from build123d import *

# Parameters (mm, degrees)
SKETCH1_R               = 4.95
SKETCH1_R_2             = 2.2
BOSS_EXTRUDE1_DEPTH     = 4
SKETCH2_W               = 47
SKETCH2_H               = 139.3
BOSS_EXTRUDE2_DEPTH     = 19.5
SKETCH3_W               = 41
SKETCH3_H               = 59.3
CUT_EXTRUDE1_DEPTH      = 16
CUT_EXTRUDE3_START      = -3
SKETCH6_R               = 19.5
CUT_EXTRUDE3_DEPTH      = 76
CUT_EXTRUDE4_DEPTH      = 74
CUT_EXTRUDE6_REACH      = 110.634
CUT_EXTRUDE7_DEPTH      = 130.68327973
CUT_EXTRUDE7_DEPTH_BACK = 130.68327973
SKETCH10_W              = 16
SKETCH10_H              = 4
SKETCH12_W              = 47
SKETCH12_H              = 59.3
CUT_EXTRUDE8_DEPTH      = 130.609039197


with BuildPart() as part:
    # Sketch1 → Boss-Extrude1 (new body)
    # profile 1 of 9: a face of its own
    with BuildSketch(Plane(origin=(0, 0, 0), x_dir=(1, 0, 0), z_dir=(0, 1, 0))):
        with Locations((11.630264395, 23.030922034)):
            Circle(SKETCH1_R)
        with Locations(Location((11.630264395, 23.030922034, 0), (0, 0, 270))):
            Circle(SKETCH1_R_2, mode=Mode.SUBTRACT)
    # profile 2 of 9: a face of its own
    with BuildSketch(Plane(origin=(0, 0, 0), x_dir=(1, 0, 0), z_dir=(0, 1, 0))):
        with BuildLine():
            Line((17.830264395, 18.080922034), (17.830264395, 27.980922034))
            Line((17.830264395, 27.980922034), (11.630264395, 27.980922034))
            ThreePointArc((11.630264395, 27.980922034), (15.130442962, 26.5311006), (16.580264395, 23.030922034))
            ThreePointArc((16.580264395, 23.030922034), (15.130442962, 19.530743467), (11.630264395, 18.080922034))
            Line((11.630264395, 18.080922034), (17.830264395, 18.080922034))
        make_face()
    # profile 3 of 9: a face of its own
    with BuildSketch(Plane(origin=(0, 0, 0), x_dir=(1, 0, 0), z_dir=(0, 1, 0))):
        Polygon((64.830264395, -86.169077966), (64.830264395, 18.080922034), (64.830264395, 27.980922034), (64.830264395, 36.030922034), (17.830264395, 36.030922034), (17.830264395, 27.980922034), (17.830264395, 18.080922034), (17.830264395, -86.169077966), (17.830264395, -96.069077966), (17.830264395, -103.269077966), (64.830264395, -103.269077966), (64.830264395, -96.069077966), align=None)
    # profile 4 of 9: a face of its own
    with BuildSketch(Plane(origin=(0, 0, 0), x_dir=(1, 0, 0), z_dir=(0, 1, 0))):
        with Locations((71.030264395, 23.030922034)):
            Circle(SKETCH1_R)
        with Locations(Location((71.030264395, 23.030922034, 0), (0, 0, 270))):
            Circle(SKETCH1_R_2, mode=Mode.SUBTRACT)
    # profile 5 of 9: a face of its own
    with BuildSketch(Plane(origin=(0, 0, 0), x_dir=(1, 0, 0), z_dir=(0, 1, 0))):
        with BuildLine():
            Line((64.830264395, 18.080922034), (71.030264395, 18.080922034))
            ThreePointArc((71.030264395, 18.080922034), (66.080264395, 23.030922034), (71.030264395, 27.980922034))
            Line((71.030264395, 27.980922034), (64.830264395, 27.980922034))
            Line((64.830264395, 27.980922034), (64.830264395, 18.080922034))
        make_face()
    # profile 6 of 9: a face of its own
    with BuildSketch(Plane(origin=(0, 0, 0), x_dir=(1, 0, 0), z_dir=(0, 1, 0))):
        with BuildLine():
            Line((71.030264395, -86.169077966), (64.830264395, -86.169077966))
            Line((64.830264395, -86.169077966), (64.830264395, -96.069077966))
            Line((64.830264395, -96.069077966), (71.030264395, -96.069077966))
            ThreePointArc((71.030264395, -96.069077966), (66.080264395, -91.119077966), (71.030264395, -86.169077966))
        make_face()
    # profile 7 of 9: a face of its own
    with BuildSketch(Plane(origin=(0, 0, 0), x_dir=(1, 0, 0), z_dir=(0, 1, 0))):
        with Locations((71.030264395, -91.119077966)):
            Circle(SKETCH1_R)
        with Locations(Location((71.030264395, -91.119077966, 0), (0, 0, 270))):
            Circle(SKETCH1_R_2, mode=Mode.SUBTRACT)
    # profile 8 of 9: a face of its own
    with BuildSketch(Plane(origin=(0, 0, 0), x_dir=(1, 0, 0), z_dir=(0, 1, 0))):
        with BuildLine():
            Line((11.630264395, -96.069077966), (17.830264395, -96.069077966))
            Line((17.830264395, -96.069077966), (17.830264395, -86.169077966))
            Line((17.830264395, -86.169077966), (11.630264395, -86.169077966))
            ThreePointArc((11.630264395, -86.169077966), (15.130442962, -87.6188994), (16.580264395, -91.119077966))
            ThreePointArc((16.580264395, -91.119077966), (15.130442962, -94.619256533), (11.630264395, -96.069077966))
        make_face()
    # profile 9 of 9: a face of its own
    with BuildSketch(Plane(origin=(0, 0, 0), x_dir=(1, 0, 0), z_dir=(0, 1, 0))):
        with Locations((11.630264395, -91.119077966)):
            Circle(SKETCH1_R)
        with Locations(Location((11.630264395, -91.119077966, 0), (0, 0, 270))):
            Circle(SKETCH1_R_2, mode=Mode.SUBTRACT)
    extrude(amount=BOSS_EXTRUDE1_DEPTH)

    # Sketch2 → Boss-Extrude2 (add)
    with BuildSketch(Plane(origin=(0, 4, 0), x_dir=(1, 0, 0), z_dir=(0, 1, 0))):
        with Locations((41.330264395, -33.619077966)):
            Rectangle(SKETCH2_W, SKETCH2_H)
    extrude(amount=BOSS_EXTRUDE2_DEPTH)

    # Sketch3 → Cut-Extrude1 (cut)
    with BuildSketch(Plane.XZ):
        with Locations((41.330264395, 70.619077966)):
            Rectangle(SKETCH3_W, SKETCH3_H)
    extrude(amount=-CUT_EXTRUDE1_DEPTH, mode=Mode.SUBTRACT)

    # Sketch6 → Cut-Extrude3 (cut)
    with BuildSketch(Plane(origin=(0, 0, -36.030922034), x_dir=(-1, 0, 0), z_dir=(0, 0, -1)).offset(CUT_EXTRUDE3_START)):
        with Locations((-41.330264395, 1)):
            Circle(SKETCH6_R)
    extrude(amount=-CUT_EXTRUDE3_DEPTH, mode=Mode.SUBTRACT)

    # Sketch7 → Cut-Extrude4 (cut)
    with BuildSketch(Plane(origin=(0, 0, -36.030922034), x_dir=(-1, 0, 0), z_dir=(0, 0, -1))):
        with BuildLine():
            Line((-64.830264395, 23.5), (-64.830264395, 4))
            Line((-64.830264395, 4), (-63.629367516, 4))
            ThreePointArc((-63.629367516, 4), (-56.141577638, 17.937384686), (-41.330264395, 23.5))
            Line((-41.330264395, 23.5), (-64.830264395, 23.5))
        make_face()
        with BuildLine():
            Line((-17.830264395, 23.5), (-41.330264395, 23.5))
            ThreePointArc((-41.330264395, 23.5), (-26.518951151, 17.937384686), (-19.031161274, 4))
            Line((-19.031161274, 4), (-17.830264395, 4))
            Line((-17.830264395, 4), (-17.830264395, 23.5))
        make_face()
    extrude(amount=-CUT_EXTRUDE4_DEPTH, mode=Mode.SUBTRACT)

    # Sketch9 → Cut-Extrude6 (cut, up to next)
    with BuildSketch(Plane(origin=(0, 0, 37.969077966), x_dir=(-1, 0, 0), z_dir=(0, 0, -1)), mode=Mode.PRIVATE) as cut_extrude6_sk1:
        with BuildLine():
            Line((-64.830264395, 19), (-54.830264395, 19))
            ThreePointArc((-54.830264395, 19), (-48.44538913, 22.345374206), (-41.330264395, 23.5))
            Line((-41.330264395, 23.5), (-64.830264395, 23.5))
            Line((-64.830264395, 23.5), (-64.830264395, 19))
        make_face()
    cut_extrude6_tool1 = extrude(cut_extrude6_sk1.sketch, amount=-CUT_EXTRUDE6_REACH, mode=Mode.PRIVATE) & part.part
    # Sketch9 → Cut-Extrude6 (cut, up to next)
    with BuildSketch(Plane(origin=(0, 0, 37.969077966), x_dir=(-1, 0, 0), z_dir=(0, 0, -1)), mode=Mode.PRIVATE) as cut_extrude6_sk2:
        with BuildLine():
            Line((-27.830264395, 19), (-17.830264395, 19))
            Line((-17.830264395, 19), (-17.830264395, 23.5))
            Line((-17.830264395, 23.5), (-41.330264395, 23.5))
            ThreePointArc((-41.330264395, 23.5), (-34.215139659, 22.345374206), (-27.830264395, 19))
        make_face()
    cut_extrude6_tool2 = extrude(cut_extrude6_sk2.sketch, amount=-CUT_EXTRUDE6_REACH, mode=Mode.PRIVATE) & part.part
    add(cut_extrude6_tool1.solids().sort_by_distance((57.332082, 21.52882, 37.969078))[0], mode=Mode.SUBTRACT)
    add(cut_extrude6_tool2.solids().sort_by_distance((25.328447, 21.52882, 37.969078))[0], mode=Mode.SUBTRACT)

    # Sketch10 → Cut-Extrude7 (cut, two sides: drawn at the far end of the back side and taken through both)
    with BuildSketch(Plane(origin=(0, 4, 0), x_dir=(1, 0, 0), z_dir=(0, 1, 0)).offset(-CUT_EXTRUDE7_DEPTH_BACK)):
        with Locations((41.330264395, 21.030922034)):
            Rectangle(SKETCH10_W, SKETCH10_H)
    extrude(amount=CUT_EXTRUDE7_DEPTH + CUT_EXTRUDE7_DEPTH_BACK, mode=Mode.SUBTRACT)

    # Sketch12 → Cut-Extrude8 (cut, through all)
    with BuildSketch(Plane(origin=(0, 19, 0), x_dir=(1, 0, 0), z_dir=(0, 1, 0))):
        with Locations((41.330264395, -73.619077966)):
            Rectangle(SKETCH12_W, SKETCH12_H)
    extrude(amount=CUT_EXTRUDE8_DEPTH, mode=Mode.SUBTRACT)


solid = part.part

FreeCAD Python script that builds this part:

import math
import FreeCAD as App
import Part
import Sketcher
Q = App.Units.Quantity

doc = App.newDocument("Part")
body = doc.addObject("PartDesign::Body", "Body")

# Sketch on XZ plane
sketch1 = body.newObject("Sketcher::SketchObject", "Sketch")
sketch1.AttachmentSupport = (doc.getObject("XZ_Plane"), [""])
sketch1.MapMode = "FlatFace"
sketch1.addGeometry([
    Part.ArcOfCircle(Part.Circle(App.Vector(11.6, -23, 0), App.Vector(0, 0, 1), 5), math.radians(90), math.radians(270)),  # 0
    Part.LineSegment(App.Vector(11.6, -18.1, 0), App.Vector(17.8, -18.1, 0)),  # 1
    Part.LineSegment(App.Vector(17.8, -18.1, 0), App.Vector(17.8, 86.2, 0)),  # 2
    Part.LineSegment(App.Vector(17.8, 86.2, 0), App.Vector(11.6, 86.2, 0)),  # 3
    Part.ArcOfCircle(Part.Circle(App.Vector(11.6, 91.1, 0), App.Vector(0, 0, 1), 5), math.radians(90), math.radians(270)),  # 4
    Part.LineSegment(App.Vector(11.6, 96.1, 0), App.Vector(17.8, 96.1, 0)),  # 5
    Part.LineSegment(App.Vector(17.8, 96.1, 0), App.Vector(17.8, 103.3, 0)),  # 6
    Part.LineSegment(App.Vector(17.8, 103.3, 0), App.Vector(64.8, 103.3, 0)),  # 7
    Part.LineSegment(App.Vector(64.8, 103.3, 0), App.Vector(64.8, 96.1, 0)),  # 8
    Part.LineSegment(App.Vector(64.8, 96.1, 0), App.Vector(71, 96.1, 0)),  # 9
    Part.ArcOfCircle(Part.Circle(App.Vector(71, 91.1, 0), App.Vector(0, 0, 1), 5), math.radians(-90), math.radians(90)),  # 10
    Part.LineSegment(App.Vector(71, 86.2, 0), App.Vector(64.8, 86.2, 0)),  # 11
    Part.LineSegment(App.Vector(64.8, 86.2, 0), App.Vector(64.8, -18.1, 0)),  # 12
    Part.LineSegment(App.Vector(64.8, -18.1, 0), App.Vector(71, -18.1, 0)),  # 13
    Part.ArcOfCircle(Part.Circle(App.Vector(71, -23, 0), App.Vector(0, 0, 1), 5), math.radians(-90), math.radians(90)),  # 14
    Part.LineSegment(App.Vector(71, -28, 0), App.Vector(64.8, -28, 0)),  # 15
    Part.LineSegment(App.Vector(64.8, -28, 0), App.Vector(64.8, -36, 0)),  # 16
    Part.LineSegment(App.Vector(64.8, -36, 0), App.Vector(17.8, -36, 0)),  # 17
    Part.LineSegment(App.Vector(17.8, -36, 0), App.Vector(17.8, -28, 0)),  # 18
    Part.LineSegment(App.Vector(17.8, -28, 0), App.Vector(11.6, -28, 0)),  # 19
    Part.Circle(App.Vector(11.6, -23, 0), App.Vector(0, 0, 1), 2.2),  # 20
    Part.Circle(App.Vector(11.6, 91.1, 0), App.Vector(0, 0, 1), 2.2),  # 21
    Part.Circle(App.Vector(71, 91.1, 0), App.Vector(0, 0, 1), 2.2),  # 22
    Part.Circle(App.Vector(71, -23, 0), App.Vector(0, 0, 1), 2.2),  # 23
], False)
sketch1.addConstraint([
    Sketcher.Constraint("Tangent", 0, 1, 1, 1),
    Sketcher.Constraint("Coincident", 1, 2, 2, 1),
    Sketcher.Constraint("Coincident", 2, 2, 3, 1),
    Sketcher.Constraint("Tangent", 3, 2, 4, 2),
    Sketcher.Constraint("Tangent", 4, 1, 5, 1),
    Sketcher.Constraint("Coincident", 5, 2, 6, 1),
    Sketcher.Constraint("Coincident", 6, 2, 7, 1),
    Sketcher.Constraint("Coincident", 7, 2, 8, 1),
    Sketcher.Constraint("Coincident", 8, 2, 9, 1),
    Sketcher.Constraint("Tangent", 9, 2, 10, 2),
    Sketcher.Constraint("Tangent", 10, 1, 11, 1),
    Sketcher.Constraint("Coincident", 11, 2, 12, 1),
    Sketcher.Constraint("Coincident", 12, 2, 13, 1),
    Sketcher.Constraint("Tangent", 13, 2, 14, 2),
    Sketcher.Constraint("Tangent", 14, 1, 15, 1),
    Sketcher.Constraint("Coincident", 15, 2, 16, 1),
    Sketcher.Constraint("Coincident", 16, 2, 17, 1),
    Sketcher.Constraint("Coincident", 17, 2, 18, 1),
    Sketcher.Constraint("Coincident", 18, 2, 19, 1),
    Sketcher.Constraint("Tangent", 19, 2, 0, 2),
    Sketcher.Constraint("Horizontal", 1),
    Sketcher.Constraint("Vertical", 2),
    Sketcher.Constraint("Horizontal", 3),
    Sketcher.Constraint("Horizontal", 5),
    Sketcher.Constraint("Vertical", 6),
    Sketcher.Constraint("Horizontal", 7),
    Sketcher.Constraint("Vertical", 8),
    Sketcher.Constraint("Horizontal", 9),
    Sketcher.Constraint("Horizontal", 11),
    Sketcher.Constraint("Vertical", 12),
    Sketcher.Constraint("Horizontal", 13),
    Sketcher.Constraint("Horizontal", 15),
    Sketcher.Constraint("Vertical", 16),
    Sketcher.Constraint("Horizontal", 17),
    Sketcher.Constraint("Vertical", 18),
    Sketcher.Constraint("Horizontal", 19),
    Sketcher.Constraint("Coincident", 20, 3, 0, 3),
    Sketcher.Constraint("Coincident", 21, 3, 4, 3),
    Sketcher.Constraint("Coincident", 22, 3, 10, 3),
    Sketcher.Constraint("Coincident", 23, 3, 14, 3),
    Sketcher.Constraint("Equal", 0, 4),
    Sketcher.Constraint("Equal", 4, 10),
    Sketcher.Constraint("Equal", 10, 14),
    Sketcher.Constraint("Equal", 20, 21),
    Sketcher.Constraint("Equal", 21, 22),
    Sketcher.Constraint("Equal", 22, 23),
    Sketcher.Constraint("Horizontal", 4, 3, 10, 3),
    Sketcher.Constraint("Horizontal", 0, 3, 14, 3),
    Sketcher.Constraint("Vertical", 0, 3, 4, 3),
    Sketcher.Constraint("Vertical", 10, 3, 14, 3),
    Sketcher.Constraint("Vertical", 2, 2, 5, 2),
    Sketcher.Constraint("Vertical", 8, 2, 11, 2),
    Sketcher.Constraint("Vertical", 12, 2, 15, 2),
    Sketcher.Constraint("Vertical", 6, 2, 17, 2),
    Sketcher.Constraint("Equal", 5, 9),
    Sketcher.Constraint("Diameter", 20, Q("4.4 mm")),
    Sketcher.Constraint("DistanceX", 7, 1, 7, 2, Q("47 mm")),
    Sketcher.Constraint("Radius", 0, Q("4.95 mm")),
    Sketcher.Constraint("DistanceX", 1, 1, 1, 2, Q("6.2 mm")),
    Sketcher.Constraint("DistanceY", 6, 1, 6, 2, Q("7.2 mm")),
    Sketcher.Constraint("DistanceY", 16, 2, 14, 3, Q("13 mm")),
    Sketcher.Constraint("DistanceY", 2, 1, 2, 2, Q("104.25 mm")),
    Sketcher.Constraint("DistanceX", -1, 1, 0, 3, Q("11.630264 mm")),
    Sketcher.Constraint("DistanceY", 0, 3, -1, 1, Q("23.030922 mm")),
])
pad1 = body.newObject("PartDesign::Pad", "Pad")
pad1.Profile = sketch1
pad1.Length = 4
pad1.Reversed = True

# Sketch on XZ plane
sketch2 = body.newObject("Sketcher::SketchObject", "Sketch001")
sketch2.AttachmentSupport = (doc.getObject("XZ_Plane"), [""])
sketch2.MapMode = "FlatFace"
sketch2.AttachmentOffset = App.Placement(App.Vector(0, 0, -4), App.Rotation())
sketch2.addGeometry([
    Part.LineSegment(App.Vector(18, -36, 0), App.Vector(18, 103, 0)),
    Part.LineSegment(App.Vector(18, 103, 0), App.Vector(65, 103, 0)),
    Part.LineSegment(App.Vector(65, 103, 0), App.Vector(65, -36, 0)),
    Part.LineSegment(App.Vector(65, -36, 0), App.Vector(18, -36, 0)),
], False)
sketch2.addConstraint([
    Sketcher.Constraint("Coincident", 0, 2, 1, 1),
    Sketcher.Constraint("Coincident", 1, 2, 2, 1),
    Sketcher.Constraint("Coincident", 2, 2, 3, 1),
    Sketcher.Constraint("Coincident", 3, 2, 0, 1),
    Sketcher.Constraint("Vertical", 0),
    Sketcher.Constraint("Horizontal", 1),
    Sketcher.Constraint("Vertical", 2),
    Sketcher.Constraint("Horizontal", 3),
    Sketcher.Constraint("DistanceX", 1, 1, 1, 2, Q("47 mm")),
    Sketcher.Constraint("DistanceY", 0, 1, 0, 2, Q("139.3 mm")),
    Sketcher.Constraint("DistanceX", -1, 1, 0, 2, Q("17.830264 mm")),
    Sketcher.Constraint("DistanceY", -1, 1, 0, 2, Q("103.269078 mm")),
])
pad2 = body.newObject("PartDesign::Pad", "Pad001")
pad2.Profile = sketch2
pad2.Length = 19.5
pad2.Reversed = True

# Sketch on XZ plane
sketch3 = body.newObject("Sketcher::SketchObject", "Sketch002")
sketch3.AttachmentSupport = (doc.getObject("XZ_Plane"), [""])
sketch3.MapMode = "FlatFace"
sketch3.addGeometry([
    Part.LineSegment(App.Vector(21, 100, 0), App.Vector(21, 41, 0)),
    Part.LineSegment(App.Vector(21, 41, 0), App.Vector(62, 41, 0)),
    Part.LineSegment(App.Vector(62, 41, 0), App.Vector(62, 100, 0)),
    Part.LineSegment(App.Vector(62, 100, 0), App.Vector(21, 100, 0)),
], False)
sketch3.addConstraint([
    Sketcher.Constraint("Coincident", 0, 2, 1, 1),
    Sketcher.Constraint("Coincident", 1, 2, 2, 1),
    Sketcher.Constraint("Coincident", 2, 2, 3, 1),
    Sketcher.Constraint("Coincident", 3, 2, 0, 1),
    Sketcher.Constraint("Vertical", 0),
    Sketcher.Constraint("Horizontal", 1),
    Sketcher.Constraint("Vertical", 2),
    Sketcher.Constraint("Horizontal", 3),
    Sketcher.Constraint("DistanceX", 1, 1, 1, 2, Q("41 mm")),
    Sketcher.Constraint("DistanceY", 0, 2, 0, 1, Q("59.3 mm")),
    Sketcher.Constraint("DistanceX", -1, 1, 0, 2, Q("20.830264 mm")),
    Sketcher.Constraint("DistanceY", -1, 1, 0, 2, Q("40.969078 mm")),
])
pocket1 = body.newObject("PartDesign::Pocket", "Pocket")
pocket1.Profile = sketch3
pocket1.Length = 16

# Sketch on XY plane
sketch4 = body.newObject("Sketcher::SketchObject", "Sketch003")
sketch4.AttachmentSupport = (doc.getObject("XY_Plane"), [""])
sketch4.MapMode = "FlatFace"
sketch4.AttachmentOffset = App.Placement(App.Vector(0, 0, -33.030922), App.Rotation())
sketch4.addGeometry(Part.Circle(App.Vector(41, 1, 0), App.Vector(0, 0, 1), 20), False)
sketch4.addConstraint([
    Sketcher.Constraint("Diameter", 0, Q("39 mm")),
    Sketcher.Constraint("DistanceY", -1, 1, 0, 3, Q("1 mm")),
    Sketcher.Constraint("DistanceX", -1, 1, 0, 3, Q("41.330264 mm")),
])
pocket2 = body.newObject("PartDesign::Pocket", "Pocket001")
pocket2.Profile = sketch4
pocket2.Length = 76
pocket2.Reversed = True

# Sketch on XY plane
sketch5 = body.newObject("Sketcher::SketchObject", "Sketch004")
sketch5.AttachmentSupport = (doc.getObject("XY_Plane"), [""])
sketch5.MapMode = "FlatFace"
sketch5.AttachmentOffset = App.Placement(App.Vector(0, 0, -36.030922), App.Rotation())
sketch5.addGeometry([
    Part.LineSegment(App.Vector(64.8, 23.5, 0), App.Vector(64.8, 4, 0)),  # 0
    Part.LineSegment(App.Vector(64.8, 4, 0), App.Vector(63.6, 4, 0)),  # 1
    Part.ArcOfCircle(Part.Circle(App.Vector(41.3, 1, 0), App.Vector(0, 0, 1), 22.5), math.radians(8), math.radians(90)),  # 2
    Part.LineSegment(App.Vector(41.3, 23.5, 0), App.Vector(64.8, 23.5, 0)),  # 3
    Part.LineSegment(App.Vector(17.8, 23.5, 0), App.Vector(41.3, 23.5, 0)),  # 4
    Part.ArcOfCircle(Part.Circle(App.Vector(41.3, 1, 0), App.Vector(0, 0, 1), 22.5), math.radians(90), math.radians(172)),  # 5
    Part.LineSegment(App.Vector(19, 4, 0), App.Vector(17.8, 4, 0)),  # 6
    Part.LineSegment(App.Vector(17.8, 4, 0), App.Vector(17.8, 23.5, 0)),  # 7
], False)
sketch5.addConstraint([
    Sketcher.Constraint("Coincident", 0, 2, 1, 1),
    Sketcher.Constraint("Coincident", 1, 2, 2, 1),
    Sketcher.Constraint("Tangent", 2, 2, 3, 1),
    Sketcher.Constraint("Coincident", 3, 2, 0, 1),
    Sketcher.Constraint("Tangent", 4, 2, 5, 1),
    Sketcher.Constraint("Coincident", 5, 2, 6, 1),
    Sketcher.Constraint("Coincident", 6, 2, 7, 1),
    Sketcher.Constraint("Coincident", 7, 2, 4, 1),
    Sketcher.Constraint("Vertical", 0),
    Sketcher.Constraint("Horizontal", 1),
    Sketcher.Constraint("Horizontal", 3),
    Sketcher.Constraint("Horizontal", 4),
    Sketcher.Constraint("Horizontal", 6),
    Sketcher.Constraint("Vertical", 7),
    Sketcher.Constraint("Coincident", 5, 3, 2, 3),
    Sketcher.Constraint("Equal", 2, 5),
    Sketcher.Constraint("Horizontal", 1, 2, 5, 2),
    Sketcher.Constraint("Equal", 3, 4),
    Sketcher.Constraint("Radius", 2, Q("22.5 mm")),
    Sketcher.Constraint("DistanceX", 3, 1, 3, 2, Q("23.5 mm")),
    Sketcher.Constraint("DistanceY", 0, 2, 0, 1, Q("19.5 mm")),
    Sketcher.Constraint("DistanceY", -1, 1, 2, 3, Q("1 mm")),
    Sketcher.Constraint("DistanceX", -1, 1, 5, 2, Q("19.031161 mm")),
])
pocket3 = body.newObject("PartDesign::Pocket", "Pocket002")
pocket3.Profile = sketch5
pocket3.Length = 74
pocket3.Reversed = True

# Sketch on XY plane
sketch6 = body.newObject("Sketcher::SketchObject", "Sketch005")
sketch6.AttachmentSupport = (doc.getObject("XY_Plane"), [""])
sketch6.MapMode = "FlatFace"
sketch6.AttachmentOffset = App.Placement(App.Vector(0, 0, 37.969078), App.Rotation())
sketch6.addGeometry([
    Part.LineSegment(App.Vector(64.8, 19, 0), App.Vector(54.8, 19, 0)),
    Part.ArcOfCircle(Part.Circle(App.Vector(41.3, 1, 0), App.Vector(0, 0, 1), 22.5), math.radians(53), math.radians(90)),
    Part.LineSegment(App.Vector(41.3, 23.5, 0), App.Vector(64.8, 23.5, 0)),
    Part.LineSegment(App.Vector(64.8, 23.5, 0), App.Vector(64.8, 19, 0)),
], False)
sketch6.addConstraint([
    Sketcher.Constraint("Coincident", 0, 2, 1, 1),
    Sketcher.Constraint("Tangent", 1, 2, 2, 1),
    Sketcher.Constraint("Coincident", 2, 2, 3, 1),
    Sketcher.Constraint("Coincident", 3, 2, 0, 1),
    Sketcher.Constraint("Horizontal", 0),
    Sketcher.Constraint("Horizontal", 2),
    Sketcher.Constraint("Vertical", 3),
    Sketcher.Constraint("Radius", 1, Q("22.5 mm")),
    Sketcher.Constraint("DistanceX", 0, 2, 0, 1, Q("10 mm")),
    Sketcher.Constraint("DistanceX", 2, 1, 2, 2, Q("23.5 mm")),
    Sketcher.Constraint("DistanceY", -1, 1, 1, 3, Q("1 mm")),
    Sketcher.Constraint("DistanceX", -1, 1, 1, 3, Q("41.330264 mm")),
])
pocket4 = body.newObject("PartDesign::Pocket", "Pocket003")
pocket4.Profile = sketch6
pocket4.Type = "UpToFirst"
pocket4.Reversed = True

# Sketch on XY plane
sketch7 = body.newObject("Sketcher::SketchObject", "Sketch006")
sketch7.AttachmentSupport = (doc.getObject("XY_Plane"), [""])
sketch7.MapMode = "FlatFace"
sketch7.AttachmentOffset = App.Placement(App.Vector(0, 0, 37.969078), App.Rotation())
sketch7.addGeometry([
    Part.LineSegment(App.Vector(27.8, 19, 0), App.Vector(17.8, 19, 0)),
    Part.LineSegment(App.Vector(17.8, 19, 0), App.Vector(17.8, 23.5, 0)),
    Part.LineSegment(App.Vector(17.8, 23.5, 0), App.Vector(41.3, 23.5, 0)),
    Part.ArcOfCircle(Part.Circle(App.Vector(41.3, 1, 0), App.Vector(0, 0, 1), 22.5), math.radians(90), math.radians(127)),
], False)
sketch7.addConstraint([
    Sketcher.Constraint("Coincident", 0, 2, 1, 1),
    Sketcher.Constraint("Coincident", 1, 2, 2, 1),
    Sketcher.Constraint("Tangent", 2, 2, 3, 1),
    Sketcher.Constraint("Coincident", 3, 2, 0, 1),
    Sketcher.Constraint("Horizontal", 0),
    Sketcher.Constraint("Vertical", 1),
    Sketcher.Constraint("Horizontal", 2),
    Sketcher.Constraint("Radius", 3, Q("22.5 mm")),
    Sketcher.Constraint("DistanceX", 0, 2, 0, 1, Q("10 mm")),
    Sketcher.Constraint("DistanceX", 2, 1, 2, 2, Q("23.5 mm")),
    Sketcher.Constraint("DistanceY", -1, 1, 3, 3, Q("1 mm")),
    Sketcher.Constraint("DistanceX", -1, 1, 3, 3, Q("41.330264 mm")),
])
pocket5 = body.newObject("PartDesign::Pocket", "Pocket004")
pocket5.Profile = sketch7
pocket5.Type = "UpToFirst"
pocket5.Reversed = True

# Sketch on XZ plane
sketch8 = body.newObject("Sketcher::SketchObject", "Sketch007")
sketch8.AttachmentSupport = (doc.getObject("XZ_Plane"), [""])
sketch8.MapMode = "FlatFace"
sketch8.AttachmentOffset = App.Placement(App.Vector(0, 0, -4), App.Rotation())
sketch8.addGeometry([
    Part.LineSegment(App.Vector(33.3, -23, 0), App.Vector(33.3, -19, 0)),
    Part.LineSegment(App.Vector(33.3, -19, 0), App.Vector(49.3, -19, 0)),
    Part.LineSegment(App.Vector(49.3, -19, 0), App.Vector(49.3, -23, 0)),
    Part.LineSegment(App.Vector(49.3, -23, 0), App.Vector(33.3, -23, 0)),
], False)
sketch8.addConstraint([
    Sketcher.Constraint("Coincident", 0, 2, 1, 1),
    Sketcher.Constraint("Coincident", 1, 2, 2, 1),
    Sketcher.Constraint("Coincident", 2, 2, 3, 1),
    Sketcher.Constraint("Coincident", 3, 2, 0, 1),
    Sketcher.Constraint("Vertical", 0),
    Sketcher.Constraint("Horizontal", 1),
    Sketcher.Constraint("Vertical", 2),
    Sketcher.Constraint("Horizontal", 3),
    Sketcher.Constraint("DistanceX", 1, 1, 1, 2, Q("16 mm")),
    Sketcher.Constraint("DistanceY", 0, 1, 0, 2, Q("4 mm")),
    Sketcher.Constraint("DistanceX", -1, 1, 0, 2, Q("33.330264 mm")),
    Sketcher.Constraint("DistanceY", 0, 2, -1, 1, Q("19.030922 mm")),
])
pocket6 = body.newObject("PartDesign::Pocket", "Pocket005")
pocket6.Profile = sketch8
pocket6.Type = "ThroughAll"
pocket6.Midplane = True

# Sketch on XZ plane
sketch9 = body.newObject("Sketcher::SketchObject", "Sketch008")
sketch9.AttachmentSupport = (doc.getObject("XZ_Plane"), [""])
sketch9.MapMode = "FlatFace"
sketch9.AttachmentOffset = App.Placement(App.Vector(0, 0, -19), App.Rotation())
sketch9.addGeometry([
    Part.LineSegment(App.Vector(18, 44, 0), App.Vector(18, 103, 0)),
    Part.LineSegment(App.Vector(18, 103, 0), App.Vector(65, 103, 0)),
    Part.LineSegment(App.Vector(65, 103, 0), App.Vector(65, 44, 0)),
    Part.LineSegment(App.Vector(65, 44, 0), App.Vector(18, 44, 0)),
], False)
sketch9.addConstraint([
    Sketcher.Constraint("Coincident", 0, 2, 1, 1),
    Sketcher.Constraint("Coincident", 1, 2, 2, 1),
    Sketcher.Constraint("Coincident", 2, 2, 3, 1),
    Sketcher.Constraint("Coincident", 3, 2, 0, 1),
    Sketcher.Constraint("Vertical", 0),
    Sketcher.Constraint("Horizontal", 1),
    Sketcher.Constraint("Vertical", 2),
    Sketcher.Constraint("Horizontal", 3),
    Sketcher.Constraint("DistanceX", 1, 1, 1, 2, Q("47 mm")),
    Sketcher.Constraint("DistanceY", 0, 1, 0, 2, Q("59.3 mm")),
    Sketcher.Constraint("DistanceX", -1, 1, 0, 2, Q("17.830264 mm")),
    Sketcher.Constraint("DistanceY", -1, 1, 0, 2, Q("103.269078 mm")),
])
pocket7 = body.newObject("PartDesign::Pocket", "Pocket006")
pocket7.Profile = sketch9
pocket7.Type = "ThroughAll"

doc.recompute()
